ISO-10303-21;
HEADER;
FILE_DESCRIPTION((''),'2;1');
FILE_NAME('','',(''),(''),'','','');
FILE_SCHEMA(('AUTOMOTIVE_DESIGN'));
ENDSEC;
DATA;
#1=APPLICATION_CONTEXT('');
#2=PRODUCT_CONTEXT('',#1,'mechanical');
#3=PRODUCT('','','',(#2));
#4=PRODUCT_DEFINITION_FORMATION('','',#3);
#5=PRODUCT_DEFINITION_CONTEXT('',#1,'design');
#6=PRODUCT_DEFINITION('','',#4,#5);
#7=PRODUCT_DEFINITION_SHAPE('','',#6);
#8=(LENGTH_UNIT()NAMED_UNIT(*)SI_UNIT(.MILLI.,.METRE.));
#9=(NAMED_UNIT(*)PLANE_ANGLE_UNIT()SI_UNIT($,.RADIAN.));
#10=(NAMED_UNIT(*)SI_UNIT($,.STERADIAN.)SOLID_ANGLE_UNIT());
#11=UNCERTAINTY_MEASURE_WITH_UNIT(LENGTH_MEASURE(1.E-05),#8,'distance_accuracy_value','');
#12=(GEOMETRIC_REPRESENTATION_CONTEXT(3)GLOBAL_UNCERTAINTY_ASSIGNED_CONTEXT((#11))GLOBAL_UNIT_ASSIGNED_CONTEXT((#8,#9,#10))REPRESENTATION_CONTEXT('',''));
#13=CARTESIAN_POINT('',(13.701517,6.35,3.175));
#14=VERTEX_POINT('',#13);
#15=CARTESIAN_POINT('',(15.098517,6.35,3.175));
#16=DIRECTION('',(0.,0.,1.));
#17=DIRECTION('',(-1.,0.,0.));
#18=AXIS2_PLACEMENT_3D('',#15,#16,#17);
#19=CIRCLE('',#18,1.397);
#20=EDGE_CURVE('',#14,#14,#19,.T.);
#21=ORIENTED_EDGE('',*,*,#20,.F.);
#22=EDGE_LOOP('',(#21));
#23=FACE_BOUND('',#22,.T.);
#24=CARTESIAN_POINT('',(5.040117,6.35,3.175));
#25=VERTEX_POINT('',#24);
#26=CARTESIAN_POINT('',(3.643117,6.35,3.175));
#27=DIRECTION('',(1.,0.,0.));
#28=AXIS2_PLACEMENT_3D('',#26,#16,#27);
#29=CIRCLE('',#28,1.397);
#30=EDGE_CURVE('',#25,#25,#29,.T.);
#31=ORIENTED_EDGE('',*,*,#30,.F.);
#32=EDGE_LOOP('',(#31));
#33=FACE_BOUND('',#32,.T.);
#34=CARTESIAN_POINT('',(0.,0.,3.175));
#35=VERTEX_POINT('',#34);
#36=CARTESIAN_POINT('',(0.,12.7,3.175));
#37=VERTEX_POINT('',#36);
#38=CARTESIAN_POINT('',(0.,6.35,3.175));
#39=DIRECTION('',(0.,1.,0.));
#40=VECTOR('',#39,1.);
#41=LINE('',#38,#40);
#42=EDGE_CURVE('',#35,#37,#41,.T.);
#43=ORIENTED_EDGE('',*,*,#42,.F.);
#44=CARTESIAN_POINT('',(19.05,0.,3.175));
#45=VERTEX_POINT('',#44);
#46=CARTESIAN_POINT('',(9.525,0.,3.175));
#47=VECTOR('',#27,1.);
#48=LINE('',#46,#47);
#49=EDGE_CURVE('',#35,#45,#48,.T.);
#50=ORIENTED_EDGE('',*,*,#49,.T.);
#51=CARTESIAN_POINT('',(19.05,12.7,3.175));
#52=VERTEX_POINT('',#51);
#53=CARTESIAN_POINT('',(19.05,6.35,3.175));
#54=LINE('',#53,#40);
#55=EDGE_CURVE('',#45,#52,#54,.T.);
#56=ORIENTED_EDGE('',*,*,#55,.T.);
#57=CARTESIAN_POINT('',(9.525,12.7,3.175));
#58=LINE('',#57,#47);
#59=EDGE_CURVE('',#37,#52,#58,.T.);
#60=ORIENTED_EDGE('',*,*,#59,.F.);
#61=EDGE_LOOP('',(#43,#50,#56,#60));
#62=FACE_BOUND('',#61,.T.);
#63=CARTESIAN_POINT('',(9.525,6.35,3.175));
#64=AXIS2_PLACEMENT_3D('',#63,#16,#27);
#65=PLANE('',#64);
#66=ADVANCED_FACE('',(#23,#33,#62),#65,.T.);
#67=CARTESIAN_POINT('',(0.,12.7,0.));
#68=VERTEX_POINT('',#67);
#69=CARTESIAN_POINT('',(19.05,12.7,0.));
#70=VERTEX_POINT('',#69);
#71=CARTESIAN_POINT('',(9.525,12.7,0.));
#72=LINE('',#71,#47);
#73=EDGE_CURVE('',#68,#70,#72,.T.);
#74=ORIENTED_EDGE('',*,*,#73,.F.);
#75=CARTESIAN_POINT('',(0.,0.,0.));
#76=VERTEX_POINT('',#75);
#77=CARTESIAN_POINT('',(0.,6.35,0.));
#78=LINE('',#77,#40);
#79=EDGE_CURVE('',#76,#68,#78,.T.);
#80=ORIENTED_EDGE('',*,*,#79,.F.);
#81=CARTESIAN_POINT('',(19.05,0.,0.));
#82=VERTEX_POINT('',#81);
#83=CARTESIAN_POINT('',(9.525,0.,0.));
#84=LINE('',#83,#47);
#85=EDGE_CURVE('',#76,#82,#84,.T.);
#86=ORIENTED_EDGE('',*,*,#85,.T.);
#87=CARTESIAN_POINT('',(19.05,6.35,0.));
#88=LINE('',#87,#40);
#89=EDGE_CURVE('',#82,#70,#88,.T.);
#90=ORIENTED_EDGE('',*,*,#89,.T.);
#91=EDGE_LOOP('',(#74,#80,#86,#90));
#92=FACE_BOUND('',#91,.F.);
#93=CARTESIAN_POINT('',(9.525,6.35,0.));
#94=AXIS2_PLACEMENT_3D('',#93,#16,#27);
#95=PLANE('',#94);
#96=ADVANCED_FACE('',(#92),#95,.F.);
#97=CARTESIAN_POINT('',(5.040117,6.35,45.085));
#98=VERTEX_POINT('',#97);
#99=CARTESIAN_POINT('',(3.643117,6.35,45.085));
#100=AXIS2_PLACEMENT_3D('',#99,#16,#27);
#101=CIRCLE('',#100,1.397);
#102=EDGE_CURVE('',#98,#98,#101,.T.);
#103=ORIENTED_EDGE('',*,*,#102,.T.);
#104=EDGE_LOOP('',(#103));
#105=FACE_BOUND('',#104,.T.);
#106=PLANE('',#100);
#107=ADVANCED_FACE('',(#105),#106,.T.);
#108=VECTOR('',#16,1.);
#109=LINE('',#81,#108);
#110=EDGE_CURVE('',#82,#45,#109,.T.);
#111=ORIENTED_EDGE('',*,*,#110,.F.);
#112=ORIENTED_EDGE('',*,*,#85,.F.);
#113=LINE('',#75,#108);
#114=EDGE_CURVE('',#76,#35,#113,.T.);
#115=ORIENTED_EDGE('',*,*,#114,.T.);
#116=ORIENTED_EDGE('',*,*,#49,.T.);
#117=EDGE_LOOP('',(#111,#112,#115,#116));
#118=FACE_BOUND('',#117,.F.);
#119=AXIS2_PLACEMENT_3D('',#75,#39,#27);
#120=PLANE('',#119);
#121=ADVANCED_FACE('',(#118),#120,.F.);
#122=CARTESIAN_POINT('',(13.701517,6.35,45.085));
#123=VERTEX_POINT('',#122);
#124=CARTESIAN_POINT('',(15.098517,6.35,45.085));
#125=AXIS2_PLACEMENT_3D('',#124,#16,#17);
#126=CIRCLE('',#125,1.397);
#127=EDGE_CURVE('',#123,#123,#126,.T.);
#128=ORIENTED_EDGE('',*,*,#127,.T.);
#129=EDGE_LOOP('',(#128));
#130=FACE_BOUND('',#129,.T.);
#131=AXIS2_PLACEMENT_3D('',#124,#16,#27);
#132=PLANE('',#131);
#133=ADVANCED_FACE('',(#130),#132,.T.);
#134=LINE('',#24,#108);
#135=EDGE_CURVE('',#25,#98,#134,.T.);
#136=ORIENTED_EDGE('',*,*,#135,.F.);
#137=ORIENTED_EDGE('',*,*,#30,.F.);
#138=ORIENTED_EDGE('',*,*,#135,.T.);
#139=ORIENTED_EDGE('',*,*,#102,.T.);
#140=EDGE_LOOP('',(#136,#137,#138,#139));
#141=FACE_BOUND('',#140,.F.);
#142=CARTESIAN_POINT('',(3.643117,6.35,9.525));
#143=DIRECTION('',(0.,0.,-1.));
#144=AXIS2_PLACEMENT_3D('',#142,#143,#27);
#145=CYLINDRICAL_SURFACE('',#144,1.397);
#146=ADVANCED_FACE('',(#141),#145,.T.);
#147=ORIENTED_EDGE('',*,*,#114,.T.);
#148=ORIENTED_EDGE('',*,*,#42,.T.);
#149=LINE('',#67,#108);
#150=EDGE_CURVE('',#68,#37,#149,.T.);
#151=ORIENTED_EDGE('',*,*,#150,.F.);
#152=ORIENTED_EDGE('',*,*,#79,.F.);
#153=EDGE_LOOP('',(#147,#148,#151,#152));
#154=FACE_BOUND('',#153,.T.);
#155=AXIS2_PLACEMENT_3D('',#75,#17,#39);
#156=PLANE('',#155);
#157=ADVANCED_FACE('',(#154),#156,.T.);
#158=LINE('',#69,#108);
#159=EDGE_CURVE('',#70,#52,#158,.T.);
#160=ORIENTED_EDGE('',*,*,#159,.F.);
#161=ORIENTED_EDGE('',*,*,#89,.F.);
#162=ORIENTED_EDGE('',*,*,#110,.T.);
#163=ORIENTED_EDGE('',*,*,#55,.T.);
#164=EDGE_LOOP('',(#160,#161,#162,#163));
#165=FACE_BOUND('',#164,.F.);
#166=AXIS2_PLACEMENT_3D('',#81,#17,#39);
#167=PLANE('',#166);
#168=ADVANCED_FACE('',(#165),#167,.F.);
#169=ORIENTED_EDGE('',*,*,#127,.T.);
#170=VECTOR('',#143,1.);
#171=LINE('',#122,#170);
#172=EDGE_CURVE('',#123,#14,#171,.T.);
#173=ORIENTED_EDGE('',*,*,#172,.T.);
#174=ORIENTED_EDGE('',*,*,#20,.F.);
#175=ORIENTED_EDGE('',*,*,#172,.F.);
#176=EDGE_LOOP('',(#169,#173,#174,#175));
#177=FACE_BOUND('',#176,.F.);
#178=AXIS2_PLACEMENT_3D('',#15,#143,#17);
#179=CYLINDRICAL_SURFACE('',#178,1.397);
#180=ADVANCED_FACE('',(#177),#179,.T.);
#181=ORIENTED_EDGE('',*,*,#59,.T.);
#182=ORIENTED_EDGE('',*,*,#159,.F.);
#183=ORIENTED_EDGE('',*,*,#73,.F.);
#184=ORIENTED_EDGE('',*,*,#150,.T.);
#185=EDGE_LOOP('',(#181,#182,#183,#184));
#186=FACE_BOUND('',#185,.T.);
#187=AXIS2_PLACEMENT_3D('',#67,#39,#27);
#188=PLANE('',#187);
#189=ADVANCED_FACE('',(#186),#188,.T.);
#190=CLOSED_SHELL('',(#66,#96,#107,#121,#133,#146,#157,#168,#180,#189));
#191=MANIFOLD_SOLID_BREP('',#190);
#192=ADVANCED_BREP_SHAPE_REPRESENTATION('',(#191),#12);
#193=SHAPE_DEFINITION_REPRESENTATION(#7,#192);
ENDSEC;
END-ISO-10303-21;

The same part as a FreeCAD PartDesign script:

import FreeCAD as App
import Part
import Sketcher
Q = App.Units.Quantity

doc = App.newDocument("Part")
body = doc.addObject("PartDesign::Body", "Body")

sketch1 = doc.addObject("Sketcher::SketchObject", "Sketch")
body.addObject(sketch1)
sketch1.AttachmentSupport = (doc.XY_Plane, [""])
sketch1.MapMode = "FlatFace"
sketch1.addGeometry(Part.LineSegment(App.Vector(0, 13, 0), App.Vector(0, 0, 0)), False)
sketch1.addGeometry(Part.LineSegment(App.Vector(0, 0, 0), App.Vector(19, 0, 0)), False)
sketch1.addGeometry(Part.LineSegment(App.Vector(19, 0, 0), App.Vector(19, 13, 0)), False)
sketch1.addGeometry(Part.LineSegment(App.Vector(19, 13, 0), App.Vector(0, 13, 0)), False)
sketch1.addConstraint(Sketcher.Constraint("Coincident", 0, 2, 1, 1))
sketch1.addConstraint(Sketcher.Constraint("Coincident", 1, 2, 2, 1))
sketch1.addConstraint(Sketcher.Constraint("Coincident", 2, 2, 3, 1))
sketch1.addConstraint(Sketcher.Constraint("Coincident", 3, 2, 0, 1))
sketch1.addConstraint(Sketcher.Constraint("Vertical", 0))
sketch1.addConstraint(Sketcher.Constraint("Horizontal", 1))
sketch1.addConstraint(Sketcher.Constraint("Vertical", 2))
sketch1.addConstraint(Sketcher.Constraint("Horizontal", 3))
sketch1.addConstraint(Sketcher.Constraint("Coincident", 0, 2, -1, 1))
sketch1.addConstraint(Sketcher.Constraint("DistanceY", 0, 2, 0, 1, Q("0.5 in")))
sketch1.addConstraint(Sketcher.Constraint("DistanceX", 1, 1, 1, 2, Q("0.75 in")))
pad1 = doc.addObject("PartDesign::Pad", "Pad")
body.addObject(pad1)
pad1.Profile = sketch1
pad1.Length = Q("0.125 in")

sketch2 = doc.addObject("Sketcher::SketchObject", "Sketch001")
body.addObject(sketch2)
sketch2.AttachmentSupport = (doc.XY_Plane, [""])
sketch2.MapMode = "FlatFace"
sketch2.AttachmentOffset = App.Placement(App.Vector(0, 0, 0.125 * 25.4), App.Rotation())
sketch2.addGeometry(Part.Circle(App.Vector(3.6, 6.3, 0), App.Vector(0, 0, 1), 1.4), False)
sketch2.addGeometry(Part.Circle(App.Vector(15.1, 6.3, 0), App.Vector(0, 0, 1), 1.4), False)
sketch2.addConstraint(Sketcher.Constraint("Equal", 0, 1))
sketch2.addConstraint(Sketcher.Constraint("Horizontal", 0, 3, 1, 3))
sketch2.addConstraint(Sketcher.Constraint("Diameter", 0, Q("0.11 in")))
sketch2.addConstraint(Sketcher.Constraint("DistanceY", -1, 1, 0, 3, Q("0.25 in")))
sketch2.addConstraint(Sketcher.Constraint("DistanceX", 0, 3, 1, 3, Q("0.451 in")))
sketch2.addConstraint(Sketcher.Constraint("DistanceX", -1, 1, 0, 3, 3.643117))
pad2 = doc.addObject("PartDesign::Pad", "Pad001")
body.addObject(pad2)
pad2.Profile = sketch2
pad2.Length = Q("0.25 in")

sketch3 = doc.addObject("Sketcher::SketchObject", "Sketch002")
body.addObject(sketch3)
sketch3.AttachmentSupport = (doc.XY_Plane, [""])
sketch3.MapMode = "FlatFace"
sketch3.AttachmentOffset = App.Placement(App.Vector(0, 0, 0.375 * 25.4), App.Rotation())
sketch3.addGeometry(Part.Circle(App.Vector(3.6, 6.3, 0), App.Vector(0, 0, 1), 1.4), False)
sketch3.addGeometry(Part.Circle(App.Vector(15.1, 6.3, 0), App.Vector(0, 0, 1), 1.4), False)
sketch3.addConstraint(Sketcher.Constraint("Equal", 0, 1))
sketch3.addConstraint(Sketcher.Constraint("Horizontal", 0, 3, 1, 3))
sketch3.addConstraint(Sketcher.Constraint("Diameter", 0, Q("0.11 in")))
sketch3.addConstraint(Sketcher.Constraint("DistanceY", -1, 1, 0, 3, Q("0.25 in")))
sketch3.addConstraint(Sketcher.Constraint("DistanceX", 0, 3, 1, 3, Q("0.451 in")))
sketch3.addConstraint(Sketcher.Constraint("DistanceX", -1, 1, 0, 3, 3.643117))
pad3 = doc.addObject("PartDesign::Pad", "Pad002")
body.addObject(pad3)
pad3.Profile = sketch3
pad3.Length = Q("1.4 in")

doc.recompute()
